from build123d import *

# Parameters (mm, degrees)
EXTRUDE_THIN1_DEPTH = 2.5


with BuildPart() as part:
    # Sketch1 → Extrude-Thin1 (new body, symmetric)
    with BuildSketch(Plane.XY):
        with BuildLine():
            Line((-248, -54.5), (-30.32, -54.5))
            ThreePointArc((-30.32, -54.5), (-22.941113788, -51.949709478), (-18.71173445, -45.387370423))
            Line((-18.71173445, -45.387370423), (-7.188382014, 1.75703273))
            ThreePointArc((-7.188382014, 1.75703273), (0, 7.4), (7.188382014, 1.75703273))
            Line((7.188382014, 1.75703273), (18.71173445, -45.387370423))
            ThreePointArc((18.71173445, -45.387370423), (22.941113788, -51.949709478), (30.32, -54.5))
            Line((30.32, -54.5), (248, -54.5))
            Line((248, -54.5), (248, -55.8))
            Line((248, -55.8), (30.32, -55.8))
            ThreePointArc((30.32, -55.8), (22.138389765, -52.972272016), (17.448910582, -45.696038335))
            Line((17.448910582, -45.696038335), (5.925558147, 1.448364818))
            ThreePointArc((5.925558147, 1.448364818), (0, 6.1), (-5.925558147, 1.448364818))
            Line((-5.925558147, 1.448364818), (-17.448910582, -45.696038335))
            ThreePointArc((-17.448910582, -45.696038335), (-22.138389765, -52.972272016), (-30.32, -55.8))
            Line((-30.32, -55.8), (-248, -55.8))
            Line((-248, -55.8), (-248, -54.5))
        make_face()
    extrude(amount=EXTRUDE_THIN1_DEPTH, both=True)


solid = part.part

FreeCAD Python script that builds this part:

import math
import FreeCAD as App
import Part
import Sketcher

V = App.Vector
Q = App.Units.Quantity

doc = App.newDocument("Part")
body = doc.addObject("PartDesign::Body", "Body")

sketch1 = body.newObject("Sketcher::SketchObject", "Sketch")
sketch1.AttachmentSupport = (doc.getObject("XY_Plane"), [""])
sketch1.MapMode = "FlatFace"
sketch1.addGeometry([
    Part.LineSegment(V(-30.3, -54.5, 0), V(-248, -54.5, 0)),
    Part.LineSegment(V(-248, -54.5, 0), V(-248, -55.8, 0)),
    Part.LineSegment(V(-248, -55.8, 0), V(-30.3, -55.8, 0)),
    Part.ArcOfCircle(Part.Circle(V(-30.3, -42.6, 0), V(0, 0, 1), 13.2), math.radians(-90), math.radians(-14)),
    Part.LineSegment(V(-17.4, -45.7, 0), V(-5.9, 1.4, 0)),
    Part.ArcOfCircle(Part.Circle(V(0, 0, 0), V(0, 0, 1), 6.1), math.radians(14), math.radians(166)),
    Part.LineSegment(V(5.9, 1.4, 0), V(17.4, -45.7, 0)),
    Part.ArcOfCircle(Part.Circle(V(30.3, -42.6, 0), V(0, 0, 1), 13.2), math.radians(-166), math.radians(-90)),
    Part.LineSegment(V(30.3, -55.8, 0), V(248, -55.8, 0)),
    Part.LineSegment(V(248, -55.8, 0), V(248, -54.5, 0)),
    Part.LineSegment(V(248, -54.5, 0), V(30.3, -54.5, 0)),
    Part.ArcOfCircle(Part.Circle(V(30.3, -42.5, 0), V(0, 0, 1), 11.9), math.radians(-166), math.radians(-90)),
    Part.LineSegment(V(18.7, -45.4, 0), V(7.2, 1.8, 0)),
    Part.ArcOfCircle(Part.Circle(V(0, 0, 0), V(0, 0, 1), 7.4), math.radians(14), math.radians(166)),
    Part.LineSegment(V(-7.2, 1.8, 0), V(-18.7, -45.4, 0)),
    Part.ArcOfCircle(Part.Circle(V(-30.3, -42.5, 0), V(0, 0, 1), 11.9), math.radians(-90), math.radians(-14)),
], False)
sketch1.addConstraint([
    Sketcher.Constraint("Coincident", 0, 2, 1, 1),
    Sketcher.Constraint("Coincident", 1, 2, 2, 1),
    Sketcher.Constraint("Tangent", 2, 2, 3, 1),
    Sketcher.Constraint("Tangent", 3, 2, 4, 1),
    Sketcher.Constraint("Tangent", 4, 2, 5, 2),
    Sketcher.Constraint("Tangent", 5, 1, 6, 1),
    Sketcher.Constraint("Tangent", 6, 2, 7, 1),
    Sketcher.Constraint("Tangent", 7, 2, 8, 1),
    Sketcher.Constraint("Coincident", 8, 2, 9, 1),
    Sketcher.Constraint("Coincident", 9, 2, 10, 1),
    Sketcher.Constraint("Tangent", 10, 2, 11, 2),
    Sketcher.Constraint("Tangent", 11, 1, 12, 1),
    Sketcher.Constraint("Tangent", 12, 2, 13, 1),
    Sketcher.Constraint("Tangent", 13, 2, 14, 1),
    Sketcher.Constraint("Tangent", 14, 2, 15, 2),
    Sketcher.Constraint("Tangent", 15, 1, 0, 1),
    Sketcher.Constraint("Horizontal", 0),
    Sketcher.Constraint("Vertical", 1),
    Sketcher.Constraint("Horizontal", 2),
    Sketcher.Constraint("Horizontal", 8),
    Sketcher.Constraint("Vertical", 9),
    Sketcher.Constraint("Horizontal", 10),
    Sketcher.Constraint("Coincident", 5, 3, -1, 1),
    Sketcher.Constraint("Coincident", 13, 3, -1, 1),
    Sketcher.Constraint("Coincident", 11, 3, 7, 3),
    Sketcher.Constraint("Coincident", 15, 3, 3, 3),
    Sketcher.Constraint("Equal", 3, 7),
    Sketcher.Constraint("Equal", 11, 15),
    Sketcher.Constraint("Symmetric", 3, 3, 7, 3, -2),
    Sketcher.Constraint("Parallel", 6, 12),
    Sketcher.Constraint("Equal", 2, 8),
    Sketcher.Constraint("Radius", 5, Q("6.1 mm")),
    Sketcher.Constraint("Radius", 13, Q("7.4 mm")),
    Sketcher.Constraint("Radius", 3, Q("13.25 mm")),
    Sketcher.Constraint("DistanceX", 0, 2, -1, 1, Q("248 mm")),
    Sketcher.Constraint("DistanceX", 0, 2, 0, 1, Q("217.68 mm")),
    Sketcher.Constraint("DistanceY", 0, 2, -1, 1, Q("54.5 mm")),
])
pad1 = body.newObject("PartDesign::Pad", "Pad")
pad1.Profile = sketch1
pad1.Length = 5
pad1.Midplane = True

doc.recompute()
